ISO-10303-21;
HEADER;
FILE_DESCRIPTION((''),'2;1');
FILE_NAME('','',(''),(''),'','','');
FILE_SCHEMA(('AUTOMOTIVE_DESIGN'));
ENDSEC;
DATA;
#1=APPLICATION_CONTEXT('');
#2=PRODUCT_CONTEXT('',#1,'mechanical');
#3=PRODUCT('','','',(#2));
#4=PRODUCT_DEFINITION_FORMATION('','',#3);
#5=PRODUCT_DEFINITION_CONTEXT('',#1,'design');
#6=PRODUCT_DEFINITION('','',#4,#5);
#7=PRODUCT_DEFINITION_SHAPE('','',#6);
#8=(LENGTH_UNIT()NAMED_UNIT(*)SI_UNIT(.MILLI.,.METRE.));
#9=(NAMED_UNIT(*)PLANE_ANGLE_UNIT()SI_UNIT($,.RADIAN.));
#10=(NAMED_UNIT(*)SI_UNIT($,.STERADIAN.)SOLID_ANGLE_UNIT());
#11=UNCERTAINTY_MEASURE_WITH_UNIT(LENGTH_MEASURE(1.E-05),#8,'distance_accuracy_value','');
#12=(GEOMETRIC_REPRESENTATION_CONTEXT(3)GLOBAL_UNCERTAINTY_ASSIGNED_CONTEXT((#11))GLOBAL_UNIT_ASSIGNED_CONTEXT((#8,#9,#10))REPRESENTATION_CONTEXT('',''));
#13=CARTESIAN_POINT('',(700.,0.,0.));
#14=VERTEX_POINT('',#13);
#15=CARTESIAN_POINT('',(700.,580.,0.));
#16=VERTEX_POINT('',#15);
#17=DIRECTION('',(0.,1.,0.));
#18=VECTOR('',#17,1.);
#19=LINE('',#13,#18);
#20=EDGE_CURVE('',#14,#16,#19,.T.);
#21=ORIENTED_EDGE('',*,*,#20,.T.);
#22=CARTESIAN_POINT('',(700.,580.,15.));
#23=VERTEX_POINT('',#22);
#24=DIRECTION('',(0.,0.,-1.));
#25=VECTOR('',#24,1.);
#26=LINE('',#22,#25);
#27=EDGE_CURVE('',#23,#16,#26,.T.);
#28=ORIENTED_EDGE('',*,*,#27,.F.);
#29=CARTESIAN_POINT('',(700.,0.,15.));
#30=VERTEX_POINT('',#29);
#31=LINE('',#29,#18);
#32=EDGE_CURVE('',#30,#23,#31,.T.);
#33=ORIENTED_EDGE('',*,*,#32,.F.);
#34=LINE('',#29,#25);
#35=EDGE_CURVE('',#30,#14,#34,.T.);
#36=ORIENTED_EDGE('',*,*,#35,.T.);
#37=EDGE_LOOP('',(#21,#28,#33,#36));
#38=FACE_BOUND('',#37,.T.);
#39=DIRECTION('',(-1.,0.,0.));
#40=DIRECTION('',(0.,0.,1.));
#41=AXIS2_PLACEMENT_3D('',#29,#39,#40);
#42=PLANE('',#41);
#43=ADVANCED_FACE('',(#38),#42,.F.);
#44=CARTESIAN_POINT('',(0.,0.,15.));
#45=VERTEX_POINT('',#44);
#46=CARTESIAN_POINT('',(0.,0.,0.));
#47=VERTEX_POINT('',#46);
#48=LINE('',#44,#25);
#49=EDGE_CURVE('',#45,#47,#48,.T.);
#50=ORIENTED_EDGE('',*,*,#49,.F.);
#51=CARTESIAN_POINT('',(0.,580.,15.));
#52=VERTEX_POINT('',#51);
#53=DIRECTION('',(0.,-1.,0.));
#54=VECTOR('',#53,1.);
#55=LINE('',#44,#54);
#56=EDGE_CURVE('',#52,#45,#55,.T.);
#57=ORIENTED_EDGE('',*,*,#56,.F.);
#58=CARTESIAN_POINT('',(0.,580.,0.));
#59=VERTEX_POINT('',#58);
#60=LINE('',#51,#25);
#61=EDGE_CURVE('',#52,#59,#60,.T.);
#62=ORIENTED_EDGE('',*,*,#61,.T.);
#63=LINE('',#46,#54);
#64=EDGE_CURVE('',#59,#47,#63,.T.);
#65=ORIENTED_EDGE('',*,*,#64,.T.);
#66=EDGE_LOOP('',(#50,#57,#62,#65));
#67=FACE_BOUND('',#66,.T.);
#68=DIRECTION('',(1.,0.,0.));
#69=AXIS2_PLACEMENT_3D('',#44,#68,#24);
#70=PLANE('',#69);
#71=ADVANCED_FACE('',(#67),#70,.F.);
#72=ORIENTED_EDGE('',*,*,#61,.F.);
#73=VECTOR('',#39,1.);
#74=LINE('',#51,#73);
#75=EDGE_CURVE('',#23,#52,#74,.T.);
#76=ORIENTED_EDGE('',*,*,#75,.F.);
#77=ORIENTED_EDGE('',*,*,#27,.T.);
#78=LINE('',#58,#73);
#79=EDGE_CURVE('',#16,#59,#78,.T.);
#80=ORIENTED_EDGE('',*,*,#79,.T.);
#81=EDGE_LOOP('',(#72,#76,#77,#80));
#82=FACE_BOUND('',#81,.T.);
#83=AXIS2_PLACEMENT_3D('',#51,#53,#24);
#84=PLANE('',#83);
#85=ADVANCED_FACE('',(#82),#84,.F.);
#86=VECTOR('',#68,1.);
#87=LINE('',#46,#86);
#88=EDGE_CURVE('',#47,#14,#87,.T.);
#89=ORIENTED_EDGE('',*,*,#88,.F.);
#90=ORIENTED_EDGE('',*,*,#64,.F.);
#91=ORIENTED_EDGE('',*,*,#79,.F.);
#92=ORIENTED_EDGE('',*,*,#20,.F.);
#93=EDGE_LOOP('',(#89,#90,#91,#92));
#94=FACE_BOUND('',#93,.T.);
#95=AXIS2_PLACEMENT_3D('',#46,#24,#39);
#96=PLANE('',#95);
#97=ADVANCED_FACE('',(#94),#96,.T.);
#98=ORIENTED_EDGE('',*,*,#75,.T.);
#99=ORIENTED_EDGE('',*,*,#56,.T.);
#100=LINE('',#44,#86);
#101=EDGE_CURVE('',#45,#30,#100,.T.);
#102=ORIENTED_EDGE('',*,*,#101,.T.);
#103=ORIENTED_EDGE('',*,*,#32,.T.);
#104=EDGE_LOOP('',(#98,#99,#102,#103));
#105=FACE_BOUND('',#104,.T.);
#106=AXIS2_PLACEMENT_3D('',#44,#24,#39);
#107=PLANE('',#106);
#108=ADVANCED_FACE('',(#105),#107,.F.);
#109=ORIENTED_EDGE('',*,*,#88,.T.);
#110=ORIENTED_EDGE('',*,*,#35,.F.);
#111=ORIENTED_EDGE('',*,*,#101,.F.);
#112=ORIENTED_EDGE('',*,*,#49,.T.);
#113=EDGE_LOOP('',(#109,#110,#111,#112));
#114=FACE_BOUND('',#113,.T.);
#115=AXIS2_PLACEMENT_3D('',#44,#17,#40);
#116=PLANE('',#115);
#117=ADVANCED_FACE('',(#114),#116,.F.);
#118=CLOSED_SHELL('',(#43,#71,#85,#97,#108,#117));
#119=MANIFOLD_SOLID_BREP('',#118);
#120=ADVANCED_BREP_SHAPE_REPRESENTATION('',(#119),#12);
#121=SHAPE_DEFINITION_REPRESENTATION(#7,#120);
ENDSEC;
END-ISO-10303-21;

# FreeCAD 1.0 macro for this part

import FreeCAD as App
import Part
import Sketcher

V = App.Vector
Q = App.Units.Quantity

doc = App.newDocument("Part")
body = doc.addObject("PartDesign::Body", "Body")

# Sketch on XY plane
sketch1 = body.newObject("Sketcher::SketchObject", "Sketch")
sketch1.AttachmentSupport = (doc.getObject("XY_Plane"), [""])
sketch1.MapMode = "FlatFace"
sketch1.addGeometry(Part.LineSegment(V(0, 580, 0), V(0, 0, 0)), False)
sketch1.addGeometry(Part.LineSegment(V(0, 0, 0), V(700, 0, 0)), False)
sketch1.addGeometry(Part.LineSegment(V(700, 0, 0), V(700, 580, 0)), False)
sketch1.addGeometry(Part.LineSegment(V(700, 580, 0), V(0, 580, 0)), False)
sketch1.addConstraint(Sketcher.Constraint("Coincident", 0, 2, 1, 1))
sketch1.addConstraint(Sketcher.Constraint("Coincident", 1, 2, 2, 1))
sketch1.addConstraint(Sketcher.Constraint("Coincident", 2, 2, 3, 1))
sketch1.addConstraint(Sketcher.Constraint("Coincident", 3, 2, 0, 1))
sketch1.addConstraint(Sketcher.Constraint("Vertical", 0))
sketch1.addConstraint(Sketcher.Constraint("Horizontal", 1))
sketch1.addConstraint(Sketcher.Constraint("Vertical", 2))
sketch1.addConstraint(Sketcher.Constraint("Horizontal", 3))
sketch1.addConstraint(Sketcher.Constraint("Coincident", 0, 2, -1, 1))
sketch1.addConstraint(Sketcher.Constraint("DistanceX", 1, 1, 1, 2, Q("700 mm")))
sketch1.addConstraint(Sketcher.Constraint("DistanceY", 0, 2, 0, 1, Q("580 mm")))
pad1 = body.newObject("PartDesign::Pad", "Pad")
pad1.Profile = sketch1
pad1.Length = 15

doc.recompute()
